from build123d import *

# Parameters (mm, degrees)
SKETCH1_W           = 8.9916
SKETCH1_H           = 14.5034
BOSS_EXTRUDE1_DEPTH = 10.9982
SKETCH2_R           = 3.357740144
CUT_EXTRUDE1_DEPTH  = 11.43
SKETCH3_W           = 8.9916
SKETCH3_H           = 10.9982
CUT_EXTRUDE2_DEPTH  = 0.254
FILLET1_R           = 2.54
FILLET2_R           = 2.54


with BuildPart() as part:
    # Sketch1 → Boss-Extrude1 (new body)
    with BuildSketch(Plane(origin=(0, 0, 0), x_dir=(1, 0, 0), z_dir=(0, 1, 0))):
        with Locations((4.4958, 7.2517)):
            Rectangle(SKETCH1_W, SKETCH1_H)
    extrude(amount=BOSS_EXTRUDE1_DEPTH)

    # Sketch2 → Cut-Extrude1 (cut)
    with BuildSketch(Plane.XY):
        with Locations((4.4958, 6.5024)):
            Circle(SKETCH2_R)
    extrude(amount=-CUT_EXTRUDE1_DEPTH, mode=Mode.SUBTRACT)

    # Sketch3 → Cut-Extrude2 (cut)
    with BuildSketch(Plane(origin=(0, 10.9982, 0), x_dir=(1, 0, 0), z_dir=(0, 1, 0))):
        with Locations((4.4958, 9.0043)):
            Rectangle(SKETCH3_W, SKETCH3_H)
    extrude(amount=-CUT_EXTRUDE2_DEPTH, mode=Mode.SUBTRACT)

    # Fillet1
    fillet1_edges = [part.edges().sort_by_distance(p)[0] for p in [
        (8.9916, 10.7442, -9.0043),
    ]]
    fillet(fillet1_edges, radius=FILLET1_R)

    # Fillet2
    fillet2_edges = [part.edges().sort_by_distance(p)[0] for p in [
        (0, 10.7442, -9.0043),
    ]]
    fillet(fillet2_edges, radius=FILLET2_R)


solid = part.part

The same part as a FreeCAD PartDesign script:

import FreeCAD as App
import Part
import Sketcher
Q = App.Units.Quantity


def edges_at(feature, points):
    """Names of the edges that pass closest to the given points."""
    edges = feature.Shape.Edges
    near = lambda p: min(range(len(edges)), key=lambda i: edges[i].distToShape(Part.Vertex(*p))[0])
    return sorted({f"Edge{near(p) + 1}" for p in points})

doc = App.newDocument("Part")
body = doc.addObject("PartDesign::Body", "Body")

sketch1 = body.newObject("Sketcher::SketchObject", "Sketch")
sketch1.AttachmentSupport = (doc.getObject("XZ_Plane"), [""])
sketch1.MapMode = "FlatFace"
sketch1.addGeometry([
    Part.LineSegment(App.Vector(0, -15, 0), App.Vector(0, 0, 0)),
    Part.LineSegment(App.Vector(0, 0, 0), App.Vector(9, 0, 0)),
    Part.LineSegment(App.Vector(9, 0, 0), App.Vector(9, -15, 0)),
    Part.LineSegment(App.Vector(9, -15, 0), App.Vector(0, -15, 0)),
], False)
sketch1.addConstraint([
    Sketcher.Constraint("Coincident", 0, 2, 1, 1),
    Sketcher.Constraint("Coincident", 1, 2, 2, 1),
    Sketcher.Constraint("Coincident", 2, 2, 3, 1),
    Sketcher.Constraint("Coincident", 3, 2, 0, 1),
    Sketcher.Constraint("Vertical", 0),
    Sketcher.Constraint("Horizontal", 1),
    Sketcher.Constraint("Vertical", 2),
    Sketcher.Constraint("Horizontal", 3),
    Sketcher.Constraint("Coincident", 0, 2, -1, 1),
    Sketcher.Constraint("DistanceX", 1, 1, 1, 2, Q("0.354 in")),
    Sketcher.Constraint("DistanceY", 0, 1, 0, 2, Q("0.571 in")),
])
pad1 = body.newObject("PartDesign::Pad", "Pad")
pad1.Profile = sketch1
pad1.Length = Q("0.433 in")
pad1.Reversed = True

sketch2 = body.newObject("Sketcher::SketchObject", "Sketch001")
sketch2.AttachmentSupport = (doc.getObject("XY_Plane"), [""])
sketch2.MapMode = "FlatFace"
sketch2.addGeometry(Part.Circle(App.Vector(4.5, 6.5, 0), App.Vector(0, 0, 1), 3.4), False)
sketch2.addConstraint([
    Sketcher.Constraint("Diameter", 0, 6.71548),
    Sketcher.Constraint("DistanceX", -1, 1, 0, 3, Q("0.177 in")),
    Sketcher.Constraint("DistanceY", -1, 1, 0, 3, Q("0.256 in")),
])
pocket1 = body.newObject("PartDesign::Pocket", "Pocket")
pocket1.Profile = sketch2
pocket1.Length = Q("0.45 in")

sketch3 = body.newObject("Sketcher::SketchObject", "Sketch002")
sketch3.AttachmentSupport = (doc.getObject("XZ_Plane"), [""])
sketch3.MapMode = "FlatFace"
sketch3.AttachmentOffset = App.Placement(App.Vector(0, 0, -0.433 * 25.4), App.Rotation())
sketch3.addGeometry([
    Part.LineSegment(App.Vector(0, -15, 0), App.Vector(0, -4, 0)),
    Part.LineSegment(App.Vector(0, -4, 0), App.Vector(9, -4, 0)),
    Part.LineSegment(App.Vector(9, -4, 0), App.Vector(9, -15, 0)),
    Part.LineSegment(App.Vector(9, -15, 0), App.Vector(0, -15, 0)),
], False)
sketch3.addConstraint([
    Sketcher.Constraint("Coincident", 0, 2, 1, 1),
    Sketcher.Constraint("Coincident", 1, 2, 2, 1),
    Sketcher.Constraint("Coincident", 2, 2, 3, 1),
    Sketcher.Constraint("Coincident", 3, 2, 0, 1),
    Sketcher.Constraint("Vertical", 0),
    Sketcher.Constraint("Horizontal", 1),
    Sketcher.Constraint("Vertical", 2),
    Sketcher.Constraint("Horizontal", 3),
    Sketcher.Constraint("PointOnObject", 0, 2, -2),
    Sketcher.Constraint("DistanceX", 1, 1, 1, 2, Q("0.354 in")),
    Sketcher.Constraint("DistanceY", 0, 1, 0, 2, Q("0.433 in")),
    Sketcher.Constraint("DistanceY", 0, 2, -1, 1, Q("0.138 in")),
])
pocket2 = body.newObject("PartDesign::Pocket", "Pocket001")
pocket2.Profile = sketch3
pocket2.Length = Q("0.01 in")
pocket2.Reversed = True
doc.recompute()

fillet = body.newObject("PartDesign::Fillet", "Fillet")
fillet.Base = (pocket2, edges_at(pocket2, [(8.992, 10.744, -9.004)]))
fillet.Radius = Q("0.1 in")
doc.recompute()

fillet2 = body.newObject("PartDesign::Fillet", "Fillet001")
fillet2.Base = (fillet, edges_at(fillet, [(0, 10.744, -9.004)]))
fillet2.Radius = Q("0.1 in")

doc.recompute()
